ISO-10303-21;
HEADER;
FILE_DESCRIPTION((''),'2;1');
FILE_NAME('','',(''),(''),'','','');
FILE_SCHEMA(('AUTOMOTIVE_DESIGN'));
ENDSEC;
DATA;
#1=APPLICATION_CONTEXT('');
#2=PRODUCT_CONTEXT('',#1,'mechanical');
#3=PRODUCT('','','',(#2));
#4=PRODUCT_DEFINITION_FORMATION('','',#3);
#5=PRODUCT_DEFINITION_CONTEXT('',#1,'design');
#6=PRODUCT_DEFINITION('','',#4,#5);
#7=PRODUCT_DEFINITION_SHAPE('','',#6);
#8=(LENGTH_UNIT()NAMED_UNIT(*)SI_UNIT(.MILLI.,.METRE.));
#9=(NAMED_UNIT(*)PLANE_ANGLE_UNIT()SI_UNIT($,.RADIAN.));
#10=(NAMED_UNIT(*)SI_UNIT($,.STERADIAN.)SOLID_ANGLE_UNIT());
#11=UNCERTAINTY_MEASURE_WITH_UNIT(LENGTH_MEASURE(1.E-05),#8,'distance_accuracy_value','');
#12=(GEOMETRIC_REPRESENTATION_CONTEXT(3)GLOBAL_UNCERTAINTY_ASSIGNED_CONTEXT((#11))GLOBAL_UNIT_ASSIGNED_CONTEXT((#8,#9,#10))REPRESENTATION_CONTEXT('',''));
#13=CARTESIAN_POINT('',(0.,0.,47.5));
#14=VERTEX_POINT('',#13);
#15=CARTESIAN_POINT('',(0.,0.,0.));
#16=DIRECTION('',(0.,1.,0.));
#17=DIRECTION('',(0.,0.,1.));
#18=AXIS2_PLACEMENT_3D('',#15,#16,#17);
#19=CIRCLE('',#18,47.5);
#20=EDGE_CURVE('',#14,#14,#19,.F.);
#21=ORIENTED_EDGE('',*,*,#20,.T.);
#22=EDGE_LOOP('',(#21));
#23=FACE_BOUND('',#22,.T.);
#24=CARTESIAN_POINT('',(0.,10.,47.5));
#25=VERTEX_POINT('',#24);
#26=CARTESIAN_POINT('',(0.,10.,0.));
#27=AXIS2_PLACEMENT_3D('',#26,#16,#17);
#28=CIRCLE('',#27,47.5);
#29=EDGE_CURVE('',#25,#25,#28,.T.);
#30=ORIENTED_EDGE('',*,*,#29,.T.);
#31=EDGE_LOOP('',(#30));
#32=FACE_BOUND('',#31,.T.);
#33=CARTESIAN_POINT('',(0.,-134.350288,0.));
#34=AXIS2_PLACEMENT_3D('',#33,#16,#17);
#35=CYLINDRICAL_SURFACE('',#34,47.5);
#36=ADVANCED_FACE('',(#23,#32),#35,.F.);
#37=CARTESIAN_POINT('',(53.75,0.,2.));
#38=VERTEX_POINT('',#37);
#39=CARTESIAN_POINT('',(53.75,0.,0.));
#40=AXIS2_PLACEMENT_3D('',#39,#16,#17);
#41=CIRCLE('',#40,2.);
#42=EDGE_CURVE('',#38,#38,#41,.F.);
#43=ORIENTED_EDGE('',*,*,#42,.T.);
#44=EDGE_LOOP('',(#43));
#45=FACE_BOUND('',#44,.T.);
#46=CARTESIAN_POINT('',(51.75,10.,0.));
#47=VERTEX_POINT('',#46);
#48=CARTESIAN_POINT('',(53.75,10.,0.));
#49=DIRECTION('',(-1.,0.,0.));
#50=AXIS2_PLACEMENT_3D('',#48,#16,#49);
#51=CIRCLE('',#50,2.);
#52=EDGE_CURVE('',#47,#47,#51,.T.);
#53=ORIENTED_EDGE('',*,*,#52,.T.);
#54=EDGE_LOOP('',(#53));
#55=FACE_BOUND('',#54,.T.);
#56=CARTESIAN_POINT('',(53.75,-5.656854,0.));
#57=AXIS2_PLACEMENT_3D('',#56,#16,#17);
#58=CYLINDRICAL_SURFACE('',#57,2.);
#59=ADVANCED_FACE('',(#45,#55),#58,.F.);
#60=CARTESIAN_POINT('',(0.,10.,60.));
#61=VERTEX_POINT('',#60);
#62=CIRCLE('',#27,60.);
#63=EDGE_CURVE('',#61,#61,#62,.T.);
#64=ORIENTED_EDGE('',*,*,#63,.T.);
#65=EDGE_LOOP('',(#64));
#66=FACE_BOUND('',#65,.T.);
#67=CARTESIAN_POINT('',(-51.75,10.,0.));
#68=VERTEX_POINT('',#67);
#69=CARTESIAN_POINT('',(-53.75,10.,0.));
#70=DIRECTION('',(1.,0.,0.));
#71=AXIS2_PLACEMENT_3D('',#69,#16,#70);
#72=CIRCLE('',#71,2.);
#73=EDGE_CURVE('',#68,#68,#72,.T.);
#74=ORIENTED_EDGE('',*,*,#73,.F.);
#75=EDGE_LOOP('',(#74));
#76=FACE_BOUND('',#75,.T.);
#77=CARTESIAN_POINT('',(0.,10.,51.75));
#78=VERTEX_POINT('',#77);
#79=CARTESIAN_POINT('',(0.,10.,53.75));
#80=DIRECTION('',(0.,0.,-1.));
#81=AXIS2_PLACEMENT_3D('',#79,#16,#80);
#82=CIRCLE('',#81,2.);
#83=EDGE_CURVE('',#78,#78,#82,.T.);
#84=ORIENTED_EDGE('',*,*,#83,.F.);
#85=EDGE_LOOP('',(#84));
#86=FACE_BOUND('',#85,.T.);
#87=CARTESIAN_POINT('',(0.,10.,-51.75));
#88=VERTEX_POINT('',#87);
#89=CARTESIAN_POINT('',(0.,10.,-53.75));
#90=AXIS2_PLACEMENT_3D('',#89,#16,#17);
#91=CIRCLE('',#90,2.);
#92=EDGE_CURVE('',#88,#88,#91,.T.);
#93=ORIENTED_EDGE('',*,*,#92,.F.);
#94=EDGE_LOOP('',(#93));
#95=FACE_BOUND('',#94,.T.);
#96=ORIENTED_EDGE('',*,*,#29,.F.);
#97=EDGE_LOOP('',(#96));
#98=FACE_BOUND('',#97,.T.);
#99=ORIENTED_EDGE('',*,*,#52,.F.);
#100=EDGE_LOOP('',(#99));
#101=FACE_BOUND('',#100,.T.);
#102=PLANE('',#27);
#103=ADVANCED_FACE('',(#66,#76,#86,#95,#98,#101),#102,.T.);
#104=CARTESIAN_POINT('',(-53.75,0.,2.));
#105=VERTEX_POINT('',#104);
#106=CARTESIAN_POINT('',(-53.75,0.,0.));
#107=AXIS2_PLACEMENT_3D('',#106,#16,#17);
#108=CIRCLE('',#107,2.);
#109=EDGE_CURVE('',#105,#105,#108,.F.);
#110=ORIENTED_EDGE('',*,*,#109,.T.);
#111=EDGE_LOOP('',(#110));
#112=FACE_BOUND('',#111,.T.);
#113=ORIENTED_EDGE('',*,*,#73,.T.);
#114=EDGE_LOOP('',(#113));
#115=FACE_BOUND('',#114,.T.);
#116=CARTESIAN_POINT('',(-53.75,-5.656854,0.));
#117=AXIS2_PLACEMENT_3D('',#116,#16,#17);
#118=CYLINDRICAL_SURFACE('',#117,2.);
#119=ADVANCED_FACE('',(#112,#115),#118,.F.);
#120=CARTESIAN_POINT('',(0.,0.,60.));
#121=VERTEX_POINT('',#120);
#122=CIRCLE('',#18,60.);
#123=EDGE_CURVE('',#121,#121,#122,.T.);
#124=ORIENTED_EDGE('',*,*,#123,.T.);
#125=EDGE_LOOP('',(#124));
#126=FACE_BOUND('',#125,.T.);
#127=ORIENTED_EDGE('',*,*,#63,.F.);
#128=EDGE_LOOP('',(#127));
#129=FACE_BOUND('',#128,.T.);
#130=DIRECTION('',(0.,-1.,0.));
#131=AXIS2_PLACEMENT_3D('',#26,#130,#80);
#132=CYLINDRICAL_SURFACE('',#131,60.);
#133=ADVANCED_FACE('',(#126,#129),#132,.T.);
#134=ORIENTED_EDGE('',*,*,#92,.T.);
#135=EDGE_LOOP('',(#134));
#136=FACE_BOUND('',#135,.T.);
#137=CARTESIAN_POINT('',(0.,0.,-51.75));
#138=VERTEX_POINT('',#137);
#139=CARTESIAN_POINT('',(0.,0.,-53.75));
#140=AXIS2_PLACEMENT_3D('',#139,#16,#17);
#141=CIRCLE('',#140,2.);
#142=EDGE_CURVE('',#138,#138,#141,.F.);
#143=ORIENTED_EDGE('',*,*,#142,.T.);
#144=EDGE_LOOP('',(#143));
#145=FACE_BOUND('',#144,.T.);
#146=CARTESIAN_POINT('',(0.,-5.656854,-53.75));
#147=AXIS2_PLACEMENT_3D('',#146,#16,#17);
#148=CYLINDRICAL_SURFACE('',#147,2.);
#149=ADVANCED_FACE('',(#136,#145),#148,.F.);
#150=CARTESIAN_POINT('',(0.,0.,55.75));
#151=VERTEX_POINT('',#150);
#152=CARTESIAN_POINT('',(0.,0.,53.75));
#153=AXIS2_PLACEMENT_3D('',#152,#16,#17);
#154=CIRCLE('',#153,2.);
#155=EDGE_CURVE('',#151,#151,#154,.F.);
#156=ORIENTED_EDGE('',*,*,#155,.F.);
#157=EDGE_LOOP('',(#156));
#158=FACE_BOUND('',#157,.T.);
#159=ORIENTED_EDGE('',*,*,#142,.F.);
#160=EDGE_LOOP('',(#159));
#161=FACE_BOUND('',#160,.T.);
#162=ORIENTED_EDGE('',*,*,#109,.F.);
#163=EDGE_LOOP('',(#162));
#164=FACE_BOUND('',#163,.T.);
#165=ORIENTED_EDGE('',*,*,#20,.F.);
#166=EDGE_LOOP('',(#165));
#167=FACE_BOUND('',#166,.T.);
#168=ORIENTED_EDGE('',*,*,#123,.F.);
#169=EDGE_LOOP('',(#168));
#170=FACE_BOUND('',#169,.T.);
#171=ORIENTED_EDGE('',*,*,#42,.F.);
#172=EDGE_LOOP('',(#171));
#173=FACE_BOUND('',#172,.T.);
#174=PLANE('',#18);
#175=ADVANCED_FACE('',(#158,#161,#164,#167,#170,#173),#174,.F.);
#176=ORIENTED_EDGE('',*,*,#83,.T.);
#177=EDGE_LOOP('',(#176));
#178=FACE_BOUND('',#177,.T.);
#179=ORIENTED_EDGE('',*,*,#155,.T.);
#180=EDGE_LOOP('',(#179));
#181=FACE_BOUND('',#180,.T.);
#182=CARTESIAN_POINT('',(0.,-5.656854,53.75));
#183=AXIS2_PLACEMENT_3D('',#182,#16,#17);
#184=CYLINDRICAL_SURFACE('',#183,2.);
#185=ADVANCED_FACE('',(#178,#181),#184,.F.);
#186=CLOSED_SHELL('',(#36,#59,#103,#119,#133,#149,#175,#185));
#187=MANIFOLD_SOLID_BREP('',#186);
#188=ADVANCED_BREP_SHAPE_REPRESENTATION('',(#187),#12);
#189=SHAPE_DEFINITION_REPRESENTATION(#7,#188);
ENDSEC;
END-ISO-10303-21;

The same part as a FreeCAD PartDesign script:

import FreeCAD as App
import Part
import Sketcher

V = App.Vector
Q = App.Units.Quantity

doc = App.newDocument("Part")
body = doc.addObject("PartDesign::Body", "Body")

# Sketch on XZ plane
sketch1 = body.newObject("Sketcher::SketchObject", "Sketch")
sketch1.AttachmentSupport = (doc.getObject("XZ_Plane"), [""])
sketch1.MapMode = "FlatFace"
sketch1.addGeometry(Part.Circle(V(0, 0, 0), V(0, 0, 1), 60), False)
sketch1.addConstraint(Sketcher.Constraint("Coincident", 0, 3, -1, 1))
sketch1.addConstraint(Sketcher.Constraint("Diameter", 0, Q("120 mm")))
pad1 = body.newObject("PartDesign::Pad", "Pad")
pad1.Profile = sketch1
pad1.Length = 10
pad1.Reversed = True

# Sketch on XZ plane
sketch2 = body.newObject("Sketcher::SketchObject", "Sketch001")
sketch2.AttachmentSupport = (doc.getObject("XZ_Plane"), [""])
sketch2.MapMode = "FlatFace"
sketch2.AttachmentOffset = App.Placement(V(0, 0, -10), App.Rotation())
sketch2.addGeometry(Part.Circle(V(0, 0, 0), V(0, 0, 1), 48), False)
sketch2.addConstraint(Sketcher.Constraint("Coincident", 0, 3, -1, 1))
sketch2.addConstraint(Sketcher.Constraint("Diameter", 0, Q("95 mm")))
pocket1 = body.newObject("PartDesign::Pocket", "Pocket")
pocket1.Profile = sketch2
pocket1.Length = 10
pocket1.Reversed = True

# Sketch on XZ plane
sketch3 = body.newObject("Sketcher::SketchObject", "Sketch002")
sketch3.AttachmentSupport = (doc.getObject("XZ_Plane"), [""])
sketch3.MapMode = "FlatFace"
sketch3.AttachmentOffset = App.Placement(V(0, 0, -10), App.Rotation())
sketch3.addGeometry(Part.Circle(V(0, -53.8, 0), V(0, 0, 1), 2), False)
sketch3.addConstraint(Sketcher.Constraint("PointOnObject", 0, 3, -2))
sketch3.addConstraint(Sketcher.Constraint("Diameter", 0, Q("4 mm")))
sketch3.addConstraint(Sketcher.Constraint("DistanceY", 0, 3, -1, 1, Q("53.75 mm")))
pocket2 = body.newObject("PartDesign::Pocket", "Pocket001")
pocket2.Profile = sketch3
pocket2.Length = 10
pocket2.Reversed = True
doc.recompute()

polarpattern = body.newObject("PartDesign::PolarPattern", "PolarPattern")
polarpattern.Originals = [pocket2]
polarpattern.Axis = (doc.getObject("Y_Axis"), [""])
polarpattern.Angle = 360
polarpattern.Occurrences = 4
body.Tip = polarpattern

doc.recompute()
